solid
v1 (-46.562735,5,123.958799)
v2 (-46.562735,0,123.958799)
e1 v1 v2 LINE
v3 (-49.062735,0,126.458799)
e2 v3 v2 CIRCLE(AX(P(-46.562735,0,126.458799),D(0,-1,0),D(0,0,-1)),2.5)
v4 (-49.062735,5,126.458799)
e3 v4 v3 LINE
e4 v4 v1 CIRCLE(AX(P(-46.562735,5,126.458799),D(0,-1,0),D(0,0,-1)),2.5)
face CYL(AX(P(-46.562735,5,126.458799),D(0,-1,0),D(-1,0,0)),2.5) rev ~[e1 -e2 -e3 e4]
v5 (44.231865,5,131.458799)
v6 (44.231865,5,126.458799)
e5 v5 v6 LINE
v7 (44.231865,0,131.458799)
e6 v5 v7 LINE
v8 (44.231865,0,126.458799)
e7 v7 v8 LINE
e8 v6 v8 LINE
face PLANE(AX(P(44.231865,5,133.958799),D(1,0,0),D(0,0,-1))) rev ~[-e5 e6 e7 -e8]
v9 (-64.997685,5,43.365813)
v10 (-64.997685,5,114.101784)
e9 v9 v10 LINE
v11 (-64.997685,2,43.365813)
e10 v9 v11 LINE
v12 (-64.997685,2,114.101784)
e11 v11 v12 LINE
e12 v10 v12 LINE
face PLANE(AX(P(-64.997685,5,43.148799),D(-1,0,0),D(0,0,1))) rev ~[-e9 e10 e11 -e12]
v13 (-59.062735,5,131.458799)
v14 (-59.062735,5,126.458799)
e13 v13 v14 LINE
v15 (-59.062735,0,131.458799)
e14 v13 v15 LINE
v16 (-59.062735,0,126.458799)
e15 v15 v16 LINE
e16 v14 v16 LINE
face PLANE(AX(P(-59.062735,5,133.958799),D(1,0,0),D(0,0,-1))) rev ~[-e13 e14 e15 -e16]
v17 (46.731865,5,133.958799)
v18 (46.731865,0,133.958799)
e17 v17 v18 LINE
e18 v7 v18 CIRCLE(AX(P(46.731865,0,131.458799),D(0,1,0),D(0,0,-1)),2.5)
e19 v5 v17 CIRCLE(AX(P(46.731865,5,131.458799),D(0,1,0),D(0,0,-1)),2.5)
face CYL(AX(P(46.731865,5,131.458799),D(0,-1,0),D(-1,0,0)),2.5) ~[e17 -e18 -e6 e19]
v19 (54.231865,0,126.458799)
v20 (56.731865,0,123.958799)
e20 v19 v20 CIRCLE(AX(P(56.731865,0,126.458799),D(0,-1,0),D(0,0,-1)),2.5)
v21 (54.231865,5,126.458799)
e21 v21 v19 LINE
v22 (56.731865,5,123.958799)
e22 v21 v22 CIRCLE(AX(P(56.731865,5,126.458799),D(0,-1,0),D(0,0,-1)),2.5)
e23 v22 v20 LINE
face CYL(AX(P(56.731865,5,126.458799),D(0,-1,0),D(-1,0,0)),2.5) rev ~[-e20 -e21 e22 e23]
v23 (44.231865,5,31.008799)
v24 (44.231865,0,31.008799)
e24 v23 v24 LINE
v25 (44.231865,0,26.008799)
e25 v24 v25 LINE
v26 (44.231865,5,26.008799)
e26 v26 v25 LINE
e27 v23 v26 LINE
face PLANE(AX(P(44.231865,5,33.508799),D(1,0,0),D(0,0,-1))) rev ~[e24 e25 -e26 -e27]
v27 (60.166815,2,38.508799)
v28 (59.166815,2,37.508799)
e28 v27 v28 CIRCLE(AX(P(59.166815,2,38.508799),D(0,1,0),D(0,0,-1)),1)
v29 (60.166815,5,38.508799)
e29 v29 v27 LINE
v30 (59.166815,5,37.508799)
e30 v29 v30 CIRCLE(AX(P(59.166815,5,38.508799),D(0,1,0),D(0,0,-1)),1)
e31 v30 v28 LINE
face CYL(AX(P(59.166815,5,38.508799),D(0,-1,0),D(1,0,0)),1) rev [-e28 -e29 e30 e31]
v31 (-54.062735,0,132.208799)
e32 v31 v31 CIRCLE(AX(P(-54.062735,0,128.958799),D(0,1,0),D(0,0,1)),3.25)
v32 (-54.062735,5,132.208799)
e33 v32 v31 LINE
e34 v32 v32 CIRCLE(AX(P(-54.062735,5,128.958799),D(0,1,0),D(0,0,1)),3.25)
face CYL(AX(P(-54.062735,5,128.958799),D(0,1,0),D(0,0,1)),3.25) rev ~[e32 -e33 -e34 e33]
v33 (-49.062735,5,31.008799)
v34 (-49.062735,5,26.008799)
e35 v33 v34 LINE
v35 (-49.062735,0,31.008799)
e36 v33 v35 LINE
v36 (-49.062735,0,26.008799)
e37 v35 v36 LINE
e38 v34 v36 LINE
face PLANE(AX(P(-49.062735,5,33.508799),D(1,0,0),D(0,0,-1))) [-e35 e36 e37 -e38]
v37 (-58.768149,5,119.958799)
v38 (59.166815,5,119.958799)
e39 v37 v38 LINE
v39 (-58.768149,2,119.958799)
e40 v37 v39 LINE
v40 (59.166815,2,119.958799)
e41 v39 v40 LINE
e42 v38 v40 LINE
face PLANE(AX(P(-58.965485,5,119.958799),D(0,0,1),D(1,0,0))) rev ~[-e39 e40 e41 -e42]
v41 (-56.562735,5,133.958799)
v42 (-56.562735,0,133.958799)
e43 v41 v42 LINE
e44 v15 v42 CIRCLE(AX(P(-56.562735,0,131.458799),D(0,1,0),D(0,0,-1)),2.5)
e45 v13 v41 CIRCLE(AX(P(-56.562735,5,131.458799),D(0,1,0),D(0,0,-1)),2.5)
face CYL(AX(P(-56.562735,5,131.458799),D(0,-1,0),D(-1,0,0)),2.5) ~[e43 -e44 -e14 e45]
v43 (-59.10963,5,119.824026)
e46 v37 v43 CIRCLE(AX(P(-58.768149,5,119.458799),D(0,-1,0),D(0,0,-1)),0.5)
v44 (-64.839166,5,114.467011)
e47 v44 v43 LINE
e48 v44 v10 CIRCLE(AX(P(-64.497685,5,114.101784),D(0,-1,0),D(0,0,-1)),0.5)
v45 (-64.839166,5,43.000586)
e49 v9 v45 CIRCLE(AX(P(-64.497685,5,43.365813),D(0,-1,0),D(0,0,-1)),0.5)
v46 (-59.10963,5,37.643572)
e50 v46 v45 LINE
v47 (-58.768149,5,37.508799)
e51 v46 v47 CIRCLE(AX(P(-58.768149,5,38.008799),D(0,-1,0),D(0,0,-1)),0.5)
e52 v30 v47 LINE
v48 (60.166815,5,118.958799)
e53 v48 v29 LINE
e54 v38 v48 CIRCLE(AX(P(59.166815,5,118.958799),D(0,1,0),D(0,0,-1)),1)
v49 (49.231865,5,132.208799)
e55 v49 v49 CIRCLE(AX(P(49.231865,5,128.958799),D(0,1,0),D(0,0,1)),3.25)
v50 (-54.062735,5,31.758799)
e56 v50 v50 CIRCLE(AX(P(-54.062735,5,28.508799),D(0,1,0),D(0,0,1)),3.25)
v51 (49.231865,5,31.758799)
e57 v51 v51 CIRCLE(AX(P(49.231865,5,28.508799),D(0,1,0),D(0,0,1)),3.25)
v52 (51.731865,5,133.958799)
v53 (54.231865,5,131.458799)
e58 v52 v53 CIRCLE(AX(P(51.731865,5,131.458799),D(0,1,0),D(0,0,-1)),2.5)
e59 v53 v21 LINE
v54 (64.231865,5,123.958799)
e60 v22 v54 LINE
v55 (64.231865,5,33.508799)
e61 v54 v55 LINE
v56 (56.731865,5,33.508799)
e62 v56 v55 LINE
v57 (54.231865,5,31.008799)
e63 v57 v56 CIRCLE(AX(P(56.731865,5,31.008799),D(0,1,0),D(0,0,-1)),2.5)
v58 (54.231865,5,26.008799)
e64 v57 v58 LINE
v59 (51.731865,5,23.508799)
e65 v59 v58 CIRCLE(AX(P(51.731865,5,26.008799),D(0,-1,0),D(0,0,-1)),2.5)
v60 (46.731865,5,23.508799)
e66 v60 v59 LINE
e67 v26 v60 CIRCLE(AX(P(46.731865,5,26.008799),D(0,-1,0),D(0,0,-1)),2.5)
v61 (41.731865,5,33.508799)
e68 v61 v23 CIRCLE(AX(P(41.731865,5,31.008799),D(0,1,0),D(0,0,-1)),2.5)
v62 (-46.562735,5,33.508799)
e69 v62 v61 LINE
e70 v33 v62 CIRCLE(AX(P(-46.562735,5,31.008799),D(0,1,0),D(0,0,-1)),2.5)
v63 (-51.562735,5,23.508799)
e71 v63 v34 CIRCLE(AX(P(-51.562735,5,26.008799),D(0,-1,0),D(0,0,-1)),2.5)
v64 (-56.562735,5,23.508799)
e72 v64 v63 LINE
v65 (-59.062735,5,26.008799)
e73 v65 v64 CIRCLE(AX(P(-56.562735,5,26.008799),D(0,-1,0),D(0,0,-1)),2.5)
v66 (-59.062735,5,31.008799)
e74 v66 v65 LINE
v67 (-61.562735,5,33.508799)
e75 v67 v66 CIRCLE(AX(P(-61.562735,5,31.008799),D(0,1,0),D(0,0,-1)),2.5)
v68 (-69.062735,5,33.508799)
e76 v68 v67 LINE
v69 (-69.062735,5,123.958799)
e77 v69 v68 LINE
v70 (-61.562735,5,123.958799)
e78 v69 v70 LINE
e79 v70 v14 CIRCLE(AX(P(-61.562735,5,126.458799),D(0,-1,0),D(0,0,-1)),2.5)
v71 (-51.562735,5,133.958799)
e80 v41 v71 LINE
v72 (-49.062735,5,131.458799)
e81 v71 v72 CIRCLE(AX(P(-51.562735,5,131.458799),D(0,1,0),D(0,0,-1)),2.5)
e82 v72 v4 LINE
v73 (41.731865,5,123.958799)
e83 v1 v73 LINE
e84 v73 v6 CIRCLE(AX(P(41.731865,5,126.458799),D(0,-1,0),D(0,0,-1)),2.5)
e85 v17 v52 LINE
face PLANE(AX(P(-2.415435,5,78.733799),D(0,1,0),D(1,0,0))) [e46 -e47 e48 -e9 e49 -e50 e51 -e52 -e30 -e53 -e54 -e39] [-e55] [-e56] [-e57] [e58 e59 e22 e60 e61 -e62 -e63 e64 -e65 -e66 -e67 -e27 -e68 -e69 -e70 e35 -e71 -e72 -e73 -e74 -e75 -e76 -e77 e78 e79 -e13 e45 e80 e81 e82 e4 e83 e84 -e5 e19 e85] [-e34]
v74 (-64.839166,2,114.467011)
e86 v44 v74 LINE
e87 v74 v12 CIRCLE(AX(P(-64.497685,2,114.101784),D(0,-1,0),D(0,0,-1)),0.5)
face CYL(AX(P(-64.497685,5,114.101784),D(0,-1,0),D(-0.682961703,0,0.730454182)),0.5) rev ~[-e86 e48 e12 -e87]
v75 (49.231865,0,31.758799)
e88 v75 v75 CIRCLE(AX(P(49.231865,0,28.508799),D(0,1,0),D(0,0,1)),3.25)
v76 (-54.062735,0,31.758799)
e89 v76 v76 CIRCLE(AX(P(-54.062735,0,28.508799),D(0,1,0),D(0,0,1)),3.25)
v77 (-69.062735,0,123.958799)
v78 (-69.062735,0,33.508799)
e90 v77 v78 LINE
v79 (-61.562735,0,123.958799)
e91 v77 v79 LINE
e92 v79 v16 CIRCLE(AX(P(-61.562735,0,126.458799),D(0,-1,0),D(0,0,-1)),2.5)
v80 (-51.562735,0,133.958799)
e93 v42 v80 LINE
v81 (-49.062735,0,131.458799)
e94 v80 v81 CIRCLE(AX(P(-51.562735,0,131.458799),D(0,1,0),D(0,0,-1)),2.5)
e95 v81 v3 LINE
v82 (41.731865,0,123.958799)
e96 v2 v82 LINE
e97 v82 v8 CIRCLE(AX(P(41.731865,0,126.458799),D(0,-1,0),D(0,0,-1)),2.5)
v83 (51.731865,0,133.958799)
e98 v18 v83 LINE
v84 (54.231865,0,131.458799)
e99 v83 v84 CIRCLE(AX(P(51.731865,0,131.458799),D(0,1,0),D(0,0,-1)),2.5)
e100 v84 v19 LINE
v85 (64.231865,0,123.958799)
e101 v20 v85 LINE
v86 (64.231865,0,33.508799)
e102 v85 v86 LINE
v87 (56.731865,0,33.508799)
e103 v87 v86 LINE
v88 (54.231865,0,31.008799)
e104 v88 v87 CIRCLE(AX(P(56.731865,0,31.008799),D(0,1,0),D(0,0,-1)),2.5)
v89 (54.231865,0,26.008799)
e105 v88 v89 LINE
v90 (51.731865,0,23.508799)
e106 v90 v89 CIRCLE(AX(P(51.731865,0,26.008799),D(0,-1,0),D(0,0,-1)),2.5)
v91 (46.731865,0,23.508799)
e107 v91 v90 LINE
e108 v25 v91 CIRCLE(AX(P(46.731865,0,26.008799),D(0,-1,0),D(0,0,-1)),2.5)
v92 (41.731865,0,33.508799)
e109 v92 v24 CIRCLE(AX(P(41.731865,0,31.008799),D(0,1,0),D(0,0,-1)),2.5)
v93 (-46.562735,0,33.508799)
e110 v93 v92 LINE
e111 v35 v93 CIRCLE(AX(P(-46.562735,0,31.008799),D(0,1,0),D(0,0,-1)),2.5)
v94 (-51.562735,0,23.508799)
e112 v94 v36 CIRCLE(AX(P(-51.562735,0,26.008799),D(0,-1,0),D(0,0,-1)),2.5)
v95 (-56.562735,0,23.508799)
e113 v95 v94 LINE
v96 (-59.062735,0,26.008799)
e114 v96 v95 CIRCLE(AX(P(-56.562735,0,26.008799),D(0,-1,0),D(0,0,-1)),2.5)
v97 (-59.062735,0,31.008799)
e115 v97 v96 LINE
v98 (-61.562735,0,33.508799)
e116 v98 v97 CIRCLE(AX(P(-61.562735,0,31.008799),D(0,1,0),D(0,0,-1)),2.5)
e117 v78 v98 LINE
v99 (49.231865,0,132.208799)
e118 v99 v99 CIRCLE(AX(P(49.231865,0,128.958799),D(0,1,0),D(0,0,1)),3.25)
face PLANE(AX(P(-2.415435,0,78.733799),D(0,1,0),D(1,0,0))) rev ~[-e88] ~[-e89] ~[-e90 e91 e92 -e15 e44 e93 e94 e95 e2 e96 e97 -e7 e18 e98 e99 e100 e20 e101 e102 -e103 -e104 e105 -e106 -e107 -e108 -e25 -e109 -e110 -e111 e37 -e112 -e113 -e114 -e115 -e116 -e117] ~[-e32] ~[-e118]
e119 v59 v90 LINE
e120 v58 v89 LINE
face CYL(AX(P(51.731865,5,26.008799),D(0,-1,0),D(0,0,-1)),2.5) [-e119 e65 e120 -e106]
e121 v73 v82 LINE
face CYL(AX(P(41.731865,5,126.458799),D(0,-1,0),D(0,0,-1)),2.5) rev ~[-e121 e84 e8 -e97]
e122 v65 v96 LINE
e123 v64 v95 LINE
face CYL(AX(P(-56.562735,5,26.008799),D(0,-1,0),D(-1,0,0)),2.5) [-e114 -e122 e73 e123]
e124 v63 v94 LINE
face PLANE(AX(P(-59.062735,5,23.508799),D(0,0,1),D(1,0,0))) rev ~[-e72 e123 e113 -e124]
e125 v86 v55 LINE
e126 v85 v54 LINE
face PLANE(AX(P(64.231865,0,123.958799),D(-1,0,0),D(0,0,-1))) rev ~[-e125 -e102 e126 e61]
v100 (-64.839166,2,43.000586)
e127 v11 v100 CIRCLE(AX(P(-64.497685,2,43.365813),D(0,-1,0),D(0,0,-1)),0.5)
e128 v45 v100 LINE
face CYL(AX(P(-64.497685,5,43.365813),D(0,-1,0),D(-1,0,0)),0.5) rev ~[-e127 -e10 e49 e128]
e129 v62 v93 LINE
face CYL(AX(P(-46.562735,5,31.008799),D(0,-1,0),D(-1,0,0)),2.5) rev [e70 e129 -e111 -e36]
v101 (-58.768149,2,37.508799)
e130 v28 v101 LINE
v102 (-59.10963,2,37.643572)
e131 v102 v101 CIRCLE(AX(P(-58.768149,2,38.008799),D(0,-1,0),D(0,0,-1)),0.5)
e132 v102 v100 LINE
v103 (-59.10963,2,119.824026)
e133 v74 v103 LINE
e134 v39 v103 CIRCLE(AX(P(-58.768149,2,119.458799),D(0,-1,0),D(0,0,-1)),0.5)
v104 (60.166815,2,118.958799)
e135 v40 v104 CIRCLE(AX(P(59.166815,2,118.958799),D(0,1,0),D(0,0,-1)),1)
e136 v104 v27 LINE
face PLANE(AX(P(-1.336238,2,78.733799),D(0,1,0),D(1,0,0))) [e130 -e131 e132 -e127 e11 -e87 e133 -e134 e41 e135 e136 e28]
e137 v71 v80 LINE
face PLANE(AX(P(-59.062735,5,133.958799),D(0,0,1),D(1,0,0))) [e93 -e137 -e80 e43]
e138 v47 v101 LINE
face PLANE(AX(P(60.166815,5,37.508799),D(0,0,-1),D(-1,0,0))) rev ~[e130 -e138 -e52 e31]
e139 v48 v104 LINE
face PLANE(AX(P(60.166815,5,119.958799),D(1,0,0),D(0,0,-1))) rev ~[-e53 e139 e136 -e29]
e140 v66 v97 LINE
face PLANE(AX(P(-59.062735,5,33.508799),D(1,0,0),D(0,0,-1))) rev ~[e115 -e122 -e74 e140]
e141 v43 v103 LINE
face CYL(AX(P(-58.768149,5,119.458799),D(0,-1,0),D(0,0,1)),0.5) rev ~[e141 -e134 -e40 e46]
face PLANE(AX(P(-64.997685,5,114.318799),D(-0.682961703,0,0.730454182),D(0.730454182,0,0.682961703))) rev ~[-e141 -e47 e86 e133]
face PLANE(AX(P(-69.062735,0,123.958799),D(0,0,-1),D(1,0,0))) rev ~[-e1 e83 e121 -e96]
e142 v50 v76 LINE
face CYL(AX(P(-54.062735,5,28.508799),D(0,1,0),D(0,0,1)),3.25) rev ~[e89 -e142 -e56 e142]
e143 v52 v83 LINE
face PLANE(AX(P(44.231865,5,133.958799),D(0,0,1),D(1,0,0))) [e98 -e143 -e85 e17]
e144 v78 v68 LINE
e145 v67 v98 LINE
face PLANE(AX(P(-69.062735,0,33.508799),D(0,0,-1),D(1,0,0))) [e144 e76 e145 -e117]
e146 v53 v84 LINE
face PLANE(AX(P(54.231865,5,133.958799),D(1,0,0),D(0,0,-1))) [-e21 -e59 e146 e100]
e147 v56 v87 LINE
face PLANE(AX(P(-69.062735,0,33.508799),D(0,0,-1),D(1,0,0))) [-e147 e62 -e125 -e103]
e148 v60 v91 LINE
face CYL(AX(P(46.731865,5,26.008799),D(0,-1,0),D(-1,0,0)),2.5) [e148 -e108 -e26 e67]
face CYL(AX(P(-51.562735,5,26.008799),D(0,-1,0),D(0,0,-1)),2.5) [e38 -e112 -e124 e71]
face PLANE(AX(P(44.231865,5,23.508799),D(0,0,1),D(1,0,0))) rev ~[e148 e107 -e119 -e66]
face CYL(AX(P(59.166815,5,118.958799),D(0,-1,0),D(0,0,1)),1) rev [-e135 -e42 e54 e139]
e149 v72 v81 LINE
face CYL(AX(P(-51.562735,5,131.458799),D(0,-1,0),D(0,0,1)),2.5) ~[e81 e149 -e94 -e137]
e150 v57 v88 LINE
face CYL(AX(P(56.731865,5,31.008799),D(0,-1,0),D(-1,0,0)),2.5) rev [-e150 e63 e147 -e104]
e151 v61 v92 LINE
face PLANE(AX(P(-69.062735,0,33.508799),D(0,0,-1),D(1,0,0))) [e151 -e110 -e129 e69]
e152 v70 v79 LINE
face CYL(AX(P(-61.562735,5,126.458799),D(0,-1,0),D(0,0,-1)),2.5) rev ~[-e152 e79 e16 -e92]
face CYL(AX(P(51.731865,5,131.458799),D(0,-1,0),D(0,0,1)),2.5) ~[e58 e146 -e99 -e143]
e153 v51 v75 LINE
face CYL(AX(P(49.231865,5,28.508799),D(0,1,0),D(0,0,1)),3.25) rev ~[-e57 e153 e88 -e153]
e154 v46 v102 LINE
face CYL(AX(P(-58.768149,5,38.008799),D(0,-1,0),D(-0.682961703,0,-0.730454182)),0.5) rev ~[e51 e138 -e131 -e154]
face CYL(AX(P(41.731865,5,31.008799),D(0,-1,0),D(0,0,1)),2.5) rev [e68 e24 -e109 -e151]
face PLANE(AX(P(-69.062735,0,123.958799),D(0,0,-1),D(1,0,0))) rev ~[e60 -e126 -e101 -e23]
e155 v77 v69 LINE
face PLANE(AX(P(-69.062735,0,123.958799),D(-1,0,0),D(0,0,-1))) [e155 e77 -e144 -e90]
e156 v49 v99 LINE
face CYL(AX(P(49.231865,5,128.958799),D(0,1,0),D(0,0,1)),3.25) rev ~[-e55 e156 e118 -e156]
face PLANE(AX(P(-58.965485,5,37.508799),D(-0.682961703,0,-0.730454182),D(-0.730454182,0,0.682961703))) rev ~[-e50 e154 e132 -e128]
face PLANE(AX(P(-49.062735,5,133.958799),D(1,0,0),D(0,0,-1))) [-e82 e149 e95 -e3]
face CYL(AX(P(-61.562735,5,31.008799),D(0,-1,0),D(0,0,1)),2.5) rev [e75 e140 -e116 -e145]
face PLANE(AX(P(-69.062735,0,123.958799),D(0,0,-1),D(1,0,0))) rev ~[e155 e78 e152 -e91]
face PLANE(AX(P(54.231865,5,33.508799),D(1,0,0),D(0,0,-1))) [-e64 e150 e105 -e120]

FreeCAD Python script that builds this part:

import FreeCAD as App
import Part
import Sketcher

V = App.Vector


def edges_at(feature, points):
    """Names of the edges that pass closest to the given points."""
    edges = feature.Shape.Edges
    near = lambda p: min(range(len(edges)), key=lambda i: edges[i].distToShape(Part.Vertex(*p))[0])
    return sorted({f"Edge{near(p) + 1}" for p in points})


def add_polygon(sketch, points):
    """Adds a closed chain of lines whose ends are joined by coincident constraints."""
    first, n = sketch.GeometryCount, len(points)
    for a, b in zip(points, points[1:] + points[:1]):
        sketch.addGeometry(Part.LineSegment(App.Vector(*a, 0), App.Vector(*b, 0)), False)
    for i in range(n):
        sketch.addConstraint(Sketcher.Constraint("Coincident", first + i, 2, first + (i + 1) % n, 1))

doc = App.newDocument("Part")
params = doc.addObject("Spreadsheet::Sheet", "Params")
for row, (alias, value) in enumerate([
    ("sketch1_height", "90.45 mm"),
    ("pad1_length", "5 mm"),
    ("sketch2_width", "10 mm"),
    ("pad2_length", "5 mm"),
    ("sketch3_diameter", "6.5 mm"),
    ("pocket1_length", "5 mm"),
    ("fillet_radius", "2.5 mm"),
    ("sketch4_height", "82.45 mm"),
    ("sketch4_height2", "71.17 mm"),
    ("pocket2_length", "3 mm"),
    ("fillet2_radius", "1 mm"),
    ("fillet3_radius", "0.5 mm"),
], start=1):
    params.set(f"A{row}", alias)
    params.set(f"B{row}", "=" + value)
    params.setAlias(f"B{row}", alias)

body = doc.addObject("PartDesign::Body", "Body")

# Sketch on XZ plane
sketch1 = body.newObject("Sketcher::SketchObject", "Sketch")
sketch1.AttachmentSupport = (doc.getObject("XZ_Plane"), [""])
sketch1.MapMode = "FlatFace"
add_polygon(sketch1, [(-69, 34), (-69, 124), (64, 124), (64, 34)])  # lines 0-3
sketch1.addConstraint([
    Sketcher.Constraint("Vertical", 0),
    Sketcher.Constraint("Horizontal", 1),
    Sketcher.Constraint("Vertical", 2),
    Sketcher.Constraint("Horizontal", 3),
    Sketcher.Constraint("DistanceY", 0, 1, 0, 2, 90.45),
    Sketcher.Constraint("DistanceX", 1, 1, 1, 2, 133.2946),
    Sketcher.Constraint("DistanceY", -1, 1, 0, 2, 123.958799),
    Sketcher.Constraint("DistanceX", 0, 2, -1, 1, 69.062735),
])
sketch1.setExpression("Constraints[8]", "Params.sketch1_height")
pad1 = body.newObject("PartDesign::Pad", "Pad")
pad1.Profile = sketch1
pad1.setExpression("Length", "Params.pad1_length")
pad1.Reversed = True

# Sketch on XZ plane
sketch2 = body.newObject("Sketcher::SketchObject", "Sketch001")
sketch2.AttachmentSupport = (doc.getObject("XZ_Plane"), [""])
sketch2.MapMode = "FlatFace"
sketch2.AttachmentOffset = App.Placement(V(0, 0, -5), App.Rotation())
add_polygon(sketch2, [(-59, 24), (-59, 34), (-49, 34), (-49, 24)])  # lines 0-3
add_polygon(sketch2, [(44, 24), (44, 34), (54, 34), (54, 24)])  # lines 4-7
add_polygon(sketch2, [(44, 124), (44, 134), (54, 134), (54, 124)])  # lines 8-11
add_polygon(sketch2, [(-59, 124), (-59, 134), (-49, 134), (-49, 124)])  # lines 12-15
sketch2.addConstraint([
    Sketcher.Constraint("Vertical", 0),
    Sketcher.Constraint("Horizontal", 1),
    Sketcher.Constraint("Vertical", 2),
    Sketcher.Constraint("Horizontal", 3),
    Sketcher.Constraint("Vertical", 4),
    Sketcher.Constraint("Horizontal", 5),
    Sketcher.Constraint("Vertical", 6),
    Sketcher.Constraint("Horizontal", 7),
    Sketcher.Constraint("Vertical", 8),
    Sketcher.Constraint("Horizontal", 9),
    Sketcher.Constraint("Vertical", 10),
    Sketcher.Constraint("Horizontal", 11),
    Sketcher.Constraint("Vertical", 12),
    Sketcher.Constraint("Horizontal", 13),
    Sketcher.Constraint("Vertical", 14),
    Sketcher.Constraint("Horizontal", 15),
    Sketcher.Constraint("Horizontal", 1, 2, 4, 2),
    Sketcher.Constraint("Horizontal", 3, 2, 6, 2),
    Sketcher.Constraint("Horizontal", 9, 2, 12, 2),
    Sketcher.Constraint("Horizontal", 11, 2, 14, 2),
    Sketcher.Constraint("Vertical", 7, 2, 8, 2),
    Sketcher.Constraint("Vertical", 6, 2, 9, 2),
    Sketcher.Constraint("Vertical", 3, 2, 12, 2),
    Sketcher.Constraint("Vertical", 2, 2, 13, 2),
    Sketcher.Constraint("Equal", 3, 5),
    Sketcher.Constraint("Equal", 15, 0),
    Sketcher.Constraint("Equal", 6, 8),
    Sketcher.Constraint("DistanceX", 1, 1, 1, 2, 10.0),
    Sketcher.Constraint("DistanceY", 4, 2, 8, 2, 100.45),
    Sketcher.Constraint("DistanceY", -1, 1, 0, 2, 33.508799),
    Sketcher.Constraint("DistanceX", 1, 2, 4, 2, 93.2946),
    Sketcher.Constraint("DistanceX", 0, 2, -1, 1, 59.062735),
])
sketch2.setExpression("Constraints[43]", "Params.sketch2_width")
pad2 = body.newObject("PartDesign::Pad", "Pad001")
pad2.Profile = sketch2
pad2.setExpression("Length", "Params.pad2_length")

# Sketch on XZ plane
sketch3 = body.newObject("Sketcher::SketchObject", "Sketch002")
sketch3.AttachmentSupport = (doc.getObject("XZ_Plane"), [""])
sketch3.MapMode = "FlatFace"
sketch3.AttachmentOffset = App.Placement(V(0, 0, -5), App.Rotation())
sketch3.addGeometry([
    Part.Circle(V(49.2, 28.5, 0), V(0, 0, 1), 3.2),
    Part.Circle(V(-54.1, 28.5, 0), V(0, 0, 1), 3.2),
    Part.Circle(V(-54.1, 129, 0), V(0, 0, 1), 3.2),
    Part.Circle(V(49.2, 129, 0), V(0, 0, 1), 3.2),
], False)
sketch3.addConstraint([
    Sketcher.Constraint("Equal", 0, 1),
    Sketcher.Constraint("Equal", 1, 2),
    Sketcher.Constraint("Equal", 2, 3),
    Sketcher.Constraint("Horizontal", 0, 3, 1, 3),
    Sketcher.Constraint("Horizontal", 2, 3, 3, 3),
    Sketcher.Constraint("Vertical", 1, 3, 2, 3),
    Sketcher.Constraint("Vertical", 0, 3, 3, 3),
    Sketcher.Constraint("Diameter", 0, 6.5),
    Sketcher.Constraint("DistanceY", 1, 3, 2, 3, 100.45),
    Sketcher.Constraint("DistanceY", -1, 1, 0, 3, 28.508799),
    Sketcher.Constraint("DistanceX", 1, 3, 0, 3, 103.2946),
    Sketcher.Constraint("DistanceX", -1, 1, 0, 3, 49.231865),
])
sketch3.setExpression("Constraints[7]", "Params.sketch3_diameter")
pocket1 = body.newObject("PartDesign::Pocket", "Pocket")
pocket1.Profile = sketch3
pocket1.setExpression("Length", "Params.pocket1_length")
pocket1.Reversed = True
doc.recompute()

fillet = body.newObject("PartDesign::Fillet", "Fillet")
fillet.Base = (pocket1, edges_at(pocket1, [
    (-59.063, 2.5, 33.509),
    (-59.063, 2.5, 23.509),
    (-49.063, 2.5, 23.509),
    (-49.063, 2.5, 33.509),
    (44.232, 2.5, 33.509),
    (44.232, 2.5, 23.509),
    (54.232, 2.5, 23.509),
    (54.232, 2.5, 33.509),
    (54.232, 2.5, 123.959),
    (54.232, 2.5, 133.959),
    (44.232, 2.5, 133.959),
    (44.232, 2.5, 123.959),
    (-49.063, 2.5, 123.959),
    (-49.063, 2.5, 133.959),
    (-59.063, 2.5, 133.959),
    (-59.063, 2.5, 123.959),
]))
fillet.setExpression("Radius", "Params.fillet_radius")

# Sketch on XZ plane
sketch4 = body.newObject("Sketcher::SketchObject", "Sketch003")
sketch4.AttachmentSupport = (doc.getObject("XZ_Plane"), [""])
sketch4.MapMode = "FlatFace"
sketch4.AttachmentOffset = App.Placement(V(0, 0, -5), App.Rotation())
add_polygon(sketch4, [(-59, 120), (60, 120), (60, 38), (-59, 38), (-65, 43), (-65, 114)])  # lines 0-5
sketch4.addConstraint([
    Sketcher.Constraint("Horizontal", 0),
    Sketcher.Constraint("Vertical", 1),
    Sketcher.Constraint("Horizontal", 2),
    Sketcher.Constraint("Vertical", 4),
    Sketcher.Constraint("Vertical", 2, 2, 5, 2),
    Sketcher.Constraint("Equal", 3, 5),
    Sketcher.Constraint("DistanceY", 1, 2, 1, 1, 82.45),
    Sketcher.Constraint("DistanceY", 4, 1, 4, 2, 71.17),
    Sketcher.Constraint("DistanceX", 0, 1, 0, 2, 119.1323),
    Sketcher.Constraint("DistanceY", -1, 1, 0, 2, 119.958799),
    Sketcher.Constraint("DistanceX", 3, 2, 2, 2, 6.0322),
    Sketcher.Constraint("DistanceX", -1, 1, 0, 2, 60.166815),
])
sketch4.setExpression("Constraints[12]", "Params.sketch4_height")
sketch4.setExpression("Constraints[13]", "Params.sketch4_height2")
pocket2 = body.newObject("PartDesign::Pocket", "Pocket001")
pocket2.Profile = sketch4
pocket2.setExpression("Length", "Params.pocket2_length")
pocket2.Reversed = True
doc.recompute()

fillet2 = body.newObject("PartDesign::Fillet", "Fillet001")
fillet2.Base = (pocket2, edges_at(pocket2, [(60.167, 3.5, 37.509), (60.167, 3.5, 119.959)]))
fillet2.setExpression("Radius", "Params.fillet2_radius")
doc.recompute()

fillet3 = body.newObject("PartDesign::Fillet", "Fillet002")
fillet3.Base = (fillet2, edges_at(fillet2, [
    (-58.965, 3.5, 37.509),
    (-58.965, 3.5, 119.959),
    (-64.998, 3.5, 114.319),
    (-64.998, 3.5, 43.149),
]))
fillet3.setExpression("Radius", "Params.fillet3_radius")

doc.recompute()
